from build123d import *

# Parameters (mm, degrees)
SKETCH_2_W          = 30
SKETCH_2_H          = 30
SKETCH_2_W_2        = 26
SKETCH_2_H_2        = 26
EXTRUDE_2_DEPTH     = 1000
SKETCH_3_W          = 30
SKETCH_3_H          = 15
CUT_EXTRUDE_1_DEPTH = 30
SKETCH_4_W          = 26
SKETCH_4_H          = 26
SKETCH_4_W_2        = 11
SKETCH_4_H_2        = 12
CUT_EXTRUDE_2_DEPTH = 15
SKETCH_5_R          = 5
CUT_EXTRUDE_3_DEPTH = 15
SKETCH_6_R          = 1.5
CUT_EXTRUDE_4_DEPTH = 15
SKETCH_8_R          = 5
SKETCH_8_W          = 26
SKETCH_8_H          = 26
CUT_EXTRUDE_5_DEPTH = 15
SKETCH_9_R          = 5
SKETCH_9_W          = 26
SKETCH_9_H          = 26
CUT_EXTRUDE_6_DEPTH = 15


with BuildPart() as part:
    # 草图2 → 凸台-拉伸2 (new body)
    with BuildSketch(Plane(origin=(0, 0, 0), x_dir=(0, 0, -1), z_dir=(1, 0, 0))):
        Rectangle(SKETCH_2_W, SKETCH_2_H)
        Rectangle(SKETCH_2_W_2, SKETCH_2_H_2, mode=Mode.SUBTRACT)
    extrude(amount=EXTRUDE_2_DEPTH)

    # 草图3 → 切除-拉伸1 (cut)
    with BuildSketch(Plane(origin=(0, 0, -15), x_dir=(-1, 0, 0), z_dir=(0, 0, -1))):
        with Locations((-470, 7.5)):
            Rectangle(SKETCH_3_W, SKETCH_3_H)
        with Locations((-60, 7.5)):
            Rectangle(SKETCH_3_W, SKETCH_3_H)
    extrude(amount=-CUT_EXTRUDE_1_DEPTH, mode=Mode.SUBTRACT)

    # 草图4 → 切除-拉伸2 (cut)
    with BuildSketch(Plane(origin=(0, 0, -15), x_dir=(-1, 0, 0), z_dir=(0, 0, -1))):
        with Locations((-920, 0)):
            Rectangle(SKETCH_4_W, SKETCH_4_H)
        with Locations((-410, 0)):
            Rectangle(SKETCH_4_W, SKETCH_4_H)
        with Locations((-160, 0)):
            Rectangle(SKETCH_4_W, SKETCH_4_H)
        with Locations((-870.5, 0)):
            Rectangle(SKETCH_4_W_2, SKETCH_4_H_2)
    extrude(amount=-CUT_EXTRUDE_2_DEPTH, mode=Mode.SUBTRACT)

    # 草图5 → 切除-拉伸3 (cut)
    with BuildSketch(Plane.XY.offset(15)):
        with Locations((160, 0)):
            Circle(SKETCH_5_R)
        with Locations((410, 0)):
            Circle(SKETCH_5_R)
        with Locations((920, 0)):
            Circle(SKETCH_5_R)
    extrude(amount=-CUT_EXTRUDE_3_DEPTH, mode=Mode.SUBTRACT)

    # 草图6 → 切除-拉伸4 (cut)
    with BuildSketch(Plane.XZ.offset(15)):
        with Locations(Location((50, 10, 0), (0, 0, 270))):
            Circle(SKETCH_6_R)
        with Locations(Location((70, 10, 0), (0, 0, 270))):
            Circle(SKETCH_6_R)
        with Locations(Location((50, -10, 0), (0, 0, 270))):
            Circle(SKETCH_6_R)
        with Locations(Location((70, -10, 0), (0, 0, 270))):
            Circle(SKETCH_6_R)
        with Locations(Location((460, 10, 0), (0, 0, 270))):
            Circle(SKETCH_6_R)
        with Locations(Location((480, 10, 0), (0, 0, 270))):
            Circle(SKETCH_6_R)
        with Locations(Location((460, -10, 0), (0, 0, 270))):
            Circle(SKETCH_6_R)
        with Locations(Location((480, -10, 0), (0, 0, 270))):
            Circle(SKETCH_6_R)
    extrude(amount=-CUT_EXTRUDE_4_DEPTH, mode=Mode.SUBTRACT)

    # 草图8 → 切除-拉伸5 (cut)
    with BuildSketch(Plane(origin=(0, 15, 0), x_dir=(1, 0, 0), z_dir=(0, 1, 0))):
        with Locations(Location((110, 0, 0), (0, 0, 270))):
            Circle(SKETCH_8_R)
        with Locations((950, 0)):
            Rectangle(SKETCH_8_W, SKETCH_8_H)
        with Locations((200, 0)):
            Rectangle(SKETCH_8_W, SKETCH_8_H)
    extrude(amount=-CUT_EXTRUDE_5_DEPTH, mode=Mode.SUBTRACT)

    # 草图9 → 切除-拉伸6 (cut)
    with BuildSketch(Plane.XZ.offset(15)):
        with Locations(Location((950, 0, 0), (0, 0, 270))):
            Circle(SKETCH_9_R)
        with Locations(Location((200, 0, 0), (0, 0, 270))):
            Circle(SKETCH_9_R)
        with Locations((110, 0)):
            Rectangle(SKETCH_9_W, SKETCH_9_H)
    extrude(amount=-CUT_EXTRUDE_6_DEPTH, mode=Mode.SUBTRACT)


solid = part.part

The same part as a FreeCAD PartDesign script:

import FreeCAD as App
import Part
import Sketcher
from FreeCAD import Vector
Q = App.Units.Quantity


def add_polygon(sketch, points):
    """Adds a closed chain of lines whose ends are joined by coincident constraints."""
    first, n = sketch.GeometryCount, len(points)
    for a, b in zip(points, points[1:] + points[:1]):
        sketch.addGeometry(Part.LineSegment(App.Vector(*a, 0), App.Vector(*b, 0)), False)
    for i in range(n):
        sketch.addConstraint(Sketcher.Constraint("Coincident", first + i, 2, first + (i + 1) % n, 1))

doc = App.newDocument("Part")
body = doc.addObject("PartDesign::Body", "Body")

sketch1 = body.newObject("Sketcher::SketchObject", "Sketch")
sketch1.AttachmentSupport = (doc.getObject("YZ_Plane"), [""])
sketch1.MapMode = "FlatFace"
add_polygon(sketch1, [(15, 15), (-15, 15), (-15, -15), (15, -15)])
add_polygon(sketch1, [(-13, -13), (-13, 13), (13, 13), (13, -13)])
sketch1.addConstraint([
    Sketcher.Constraint("Horizontal", 0),
    Sketcher.Constraint("Vertical", 1),
    Sketcher.Constraint("Horizontal", 2),
    Sketcher.Constraint("Vertical", 3),
    Sketcher.Constraint("Vertical", 4),
    Sketcher.Constraint("Horizontal", 5),
    Sketcher.Constraint("Vertical", 6),
    Sketcher.Constraint("Horizontal", 7),
    Sketcher.Constraint("Symmetric", 0, 2, 2, 2, -1, 1),
    Sketcher.Constraint("Symmetric", 4, 2, 6, 2, -1, 1),
    Sketcher.Constraint("Equal", 2, 1),
    Sketcher.Constraint("Equal", 7, 4),
    Sketcher.Constraint("DistanceX", 0, 2, 0, 1, Q("30 mm")),
    Sketcher.Constraint("DistanceX", 5, 1, 5, 2, Q("26 mm")),
])
pad1 = body.newObject("PartDesign::Pad", "Pad")
pad1.Profile = sketch1
pad1.Length = 1000

sketch2 = body.newObject("Sketcher::SketchObject", "Sketch001")
sketch2.AttachmentSupport = (doc.getObject("XY_Plane"), [""])
sketch2.MapMode = "FlatFace"
sketch2.AttachmentOffset = App.Placement(Vector(0, 0, -15), App.Rotation())
add_polygon(sketch2, [(485, 15), (485, 0), (455, 0), (455, 15)])
add_polygon(sketch2, [(75, 15), (75, 0), (45, 0), (45, 15)])
sketch2.addConstraint([
    Sketcher.Constraint("Vertical", 0),
    Sketcher.Constraint("Horizontal", 1),
    Sketcher.Constraint("Vertical", 2),
    Sketcher.Constraint("Horizontal", 3),
    Sketcher.Constraint("Vertical", 4),
    Sketcher.Constraint("Horizontal", 5),
    Sketcher.Constraint("Vertical", 6),
    Sketcher.Constraint("Horizontal", 7),
    Sketcher.Constraint("PointOnObject", 0, 2, -1),
    Sketcher.Constraint("PointOnObject", 4, 2, -1),
    Sketcher.Constraint("Horizontal", 3, 2, 6, 2),
    Sketcher.Constraint("Equal", 3, 5),
    Sketcher.Constraint("DistanceX", 1, 2, 1, 1, Q("30 mm")),
    Sketcher.Constraint("DistanceY", 0, 2, 0, 1, Q("15 mm")),
    Sketcher.Constraint("DistanceX", -1, 1, 0, 2, Q("485 mm")),
    Sketcher.Constraint("DistanceX", -1, 1, 4, 2, Q("75 mm")),
])
pocket1 = body.newObject("PartDesign::Pocket", "Pocket")
pocket1.Profile = sketch2
pocket1.Length = 30
pocket1.Reversed = True

sketch3 = body.newObject("Sketcher::SketchObject", "Sketch002")
sketch3.AttachmentSupport = (doc.getObject("XY_Plane"), [""])
sketch3.MapMode = "FlatFace"
sketch3.AttachmentOffset = App.Placement(Vector(0, 0, -15), App.Rotation())
add_polygon(sketch3, [(933, 13), (933, -13), (907, -13), (907, 13)])
add_polygon(sketch3, [(423, 13), (423, -13), (397, -13), (397, 13)])
add_polygon(sketch3, [(173, 13), (173, -13), (147, -13), (147, 13)])
add_polygon(sketch3, [(876, 6), (876, -6), (865, -6), (865, 6)])
sketch3.addConstraint([
    Sketcher.Constraint("Vertical", 0),
    Sketcher.Constraint("Horizontal", 1),
    Sketcher.Constraint("Vertical", 2),
    Sketcher.Constraint("Horizontal", 3),
    Sketcher.Constraint("Vertical", 4),
    Sketcher.Constraint("Horizontal", 5),
    Sketcher.Constraint("Vertical", 6),
    Sketcher.Constraint("Horizontal", 7),
    Sketcher.Constraint("Vertical", 8),
    Sketcher.Constraint("Horizontal", 9),
    Sketcher.Constraint("Vertical", 10),
    Sketcher.Constraint("Horizontal", 11),
    Sketcher.Constraint("Vertical", 12),
    Sketcher.Constraint("Horizontal", 13),
    Sketcher.Constraint("Vertical", 14),
    Sketcher.Constraint("Horizontal", 15),
    Sketcher.Constraint("Horizontal", 1, 2, 4, 2),
    Sketcher.Constraint("Horizontal", 3, 2, 6, 2),
    Sketcher.Constraint("Horizontal", 5, 2, 8, 2),
    Sketcher.Constraint("Horizontal", 7, 2, 10, 2),
    Sketcher.Constraint("Equal", 3, 5),
    Sketcher.Constraint("Equal", 7, 9),
    Sketcher.Constraint("Equal", 11, 0),
    Sketcher.Constraint("DistanceX", 1, 2, 1, 1, Q("26 mm")),
    Sketcher.Constraint("DistanceX", 13, 2, 13, 1, Q("11 mm")),
    Sketcher.Constraint("DistanceY", 12, 2, 12, 1, Q("12 mm")),
    Sketcher.Constraint("DistanceX", -1, 1, 0, 2, Q("933 mm")),
    Sketcher.Constraint("DistanceY", 0, 2, -1, 1, Q("13 mm")),
    Sketcher.Constraint("DistanceX", -1, 1, 4, 2, Q("423 mm")),
    Sketcher.Constraint("DistanceX", -1, 1, 8, 2, Q("173 mm")),
    Sketcher.Constraint("DistanceX", -1, 1, 12, 2, Q("876 mm")),
    Sketcher.Constraint("DistanceY", 12, 2, -1, 1, Q("6 mm")),
])
pocket2 = body.newObject("PartDesign::Pocket", "Pocket001")
pocket2.Profile = sketch3
pocket2.Length = 15
pocket2.Reversed = True

sketch4 = body.newObject("Sketcher::SketchObject", "Sketch003")
sketch4.AttachmentSupport = (doc.getObject("XY_Plane"), [""])
sketch4.MapMode = "FlatFace"
sketch4.AttachmentOffset = App.Placement(Vector(0, 0, 15), App.Rotation())
sketch4.addGeometry([
    Part.Circle(Vector(160, 0, 0), Vector(0, 0, 1), 5),
    Part.Circle(Vector(410, 0, 0), Vector(0, 0, 1), 5),
    Part.Circle(Vector(920, 0, 0), Vector(0, 0, 1), 5),
], False)
sketch4.addConstraint([
    Sketcher.Constraint("Equal", 0, 1),
    Sketcher.Constraint("Equal", 1, 2),
    Sketcher.Constraint("PointOnObject", 0, 3, -1),
    Sketcher.Constraint("PointOnObject", 1, 3, -1),
    Sketcher.Constraint("PointOnObject", 2, 3, -1),
    Sketcher.Constraint("Diameter", 0, Q("10 mm")),
    Sketcher.Constraint("DistanceX", -1, 1, 0, 3, Q("160 mm")),
    Sketcher.Constraint("DistanceX", -1, 1, 1, 3, Q("410 mm")),
    Sketcher.Constraint("DistanceX", -1, 1, 2, 3, Q("920 mm")),
])
pocket3 = body.newObject("PartDesign::Pocket", "Pocket002")
pocket3.Profile = sketch4
pocket3.Length = 15

sketch5 = body.newObject("Sketcher::SketchObject", "Sketch004")
sketch5.AttachmentSupport = (doc.getObject("XZ_Plane"), [""])
sketch5.MapMode = "FlatFace"
sketch5.AttachmentOffset = App.Placement(Vector(0, 0, 15), App.Rotation())
sketch5.addGeometry([
    Part.Circle(Vector(50, 10, 0), Vector(0, 0, 1), 1.5),
    Part.Circle(Vector(70, 10, 0), Vector(0, 0, 1), 1.5),
    Part.Circle(Vector(50, -10, 0), Vector(0, 0, 1), 1.5),
    Part.Circle(Vector(70, -10, 0), Vector(0, 0, 1), 1.5),
    Part.Circle(Vector(460, 10, 0), Vector(0, 0, 1), 1.5),
    Part.Circle(Vector(480, 10, 0), Vector(0, 0, 1), 1.5),
    Part.Circle(Vector(460, -10, 0), Vector(0, 0, 1), 1.5),
    Part.Circle(Vector(480, -10, 0), Vector(0, 0, 1), 1.5),
], False)
sketch5.addConstraint([
    Sketcher.Constraint("Equal", 0, 1),
    Sketcher.Constraint("Equal", 1, 2),
    Sketcher.Constraint("Equal", 2, 3),
    Sketcher.Constraint("Equal", 3, 4),
    Sketcher.Constraint("Equal", 4, 5),
    Sketcher.Constraint("Equal", 5, 6),
    Sketcher.Constraint("Equal", 6, 7),
    Sketcher.Constraint("Symmetric", 0, 3, 2, 3, -1),
    Sketcher.Constraint("Symmetric", 1, 3, 3, 3, -1),
    Sketcher.Constraint("Symmetric", 4, 3, 6, 3, -1),
    Sketcher.Constraint("Symmetric", 5, 3, 7, 3, -1),
    Sketcher.Constraint("Horizontal", 0, 3, 1, 3),
    Sketcher.Constraint("Horizontal", 1, 3, 4, 3),
    Sketcher.Constraint("Horizontal", 4, 3, 5, 3),
    Sketcher.Constraint("Diameter", 0, Q("3 mm")),
    Sketcher.Constraint("DistanceX", -1, 1, 0, 3, Q("50 mm")),
    Sketcher.Constraint("DistanceY", -1, 1, 0, 3, Q("10 mm")),
    Sketcher.Constraint("DistanceX", -1, 1, 1, 3, Q("70 mm")),
    Sketcher.Constraint("DistanceX", -1, 1, 4, 3, Q("460 mm")),
    Sketcher.Constraint("DistanceX", -1, 1, 5, 3, Q("480 mm")),
])
pocket4 = body.newObject("PartDesign::Pocket", "Pocket003")
pocket4.Profile = sketch5
pocket4.Length = 15

sketch6 = body.newObject("Sketcher::SketchObject", "Sketch005")
sketch6.AttachmentSupport = (doc.getObject("XZ_Plane"), [""])
sketch6.MapMode = "FlatFace"
sketch6.AttachmentOffset = App.Placement(Vector(0, 0, -15), App.Rotation())
sketch6.addGeometry(Part.Circle(Vector(110, 0, 0), Vector(0, 0, 1), 5), False)
add_polygon(sketch6, [(937, -13), (937, 13), (963, 13), (963, -13)])
add_polygon(sketch6, [(187, -13), (187, 13), (213, 13), (213, -13)])
sketch6.addConstraint([
    Sketcher.Constraint("Vertical", 1),
    Sketcher.Constraint("Horizontal", 2),
    Sketcher.Constraint("Vertical", 3),
    Sketcher.Constraint("Horizontal", 4),
    Sketcher.Constraint("Vertical", 5),
    Sketcher.Constraint("Horizontal", 6),
    Sketcher.Constraint("Vertical", 7),
    Sketcher.Constraint("Horizontal", 8),
    Sketcher.Constraint("PointOnObject", 0, 3, -1),
    Sketcher.Constraint("Horizontal", 2, 2, 5, 2),
    Sketcher.Constraint("Horizontal", 4, 2, 7, 2),
    Sketcher.Constraint("Equal", 4, 6),
    Sketcher.Constraint("Equal", 8, 1),
    Sketcher.Constraint("Diameter", 0, Q("10 mm")),
    Sketcher.Constraint("DistanceX", 2, 1, 2, 2, Q("26 mm")),
    Sketcher.Constraint("DistanceX", -1, 1, 0, 3, Q("110 mm")),
    Sketcher.Constraint("DistanceX", -1, 1, 1, 2, Q("937 mm")),
    Sketcher.Constraint("DistanceY", -1, 1, 1, 2, Q("13 mm")),
    Sketcher.Constraint("DistanceX", -1, 1, 5, 2, Q("187 mm")),
])
pocket5 = body.newObject("PartDesign::Pocket", "Pocket004")
pocket5.Profile = sketch6
pocket5.Length = 15
pocket5.Reversed = True

sketch7 = body.newObject("Sketcher::SketchObject", "Sketch006")
sketch7.AttachmentSupport = (doc.getObject("XZ_Plane"), [""])
sketch7.MapMode = "FlatFace"
sketch7.AttachmentOffset = App.Placement(Vector(0, 0, 15), App.Rotation())
sketch7.addGeometry(Part.Circle(Vector(950, 0, 0), Vector(0, 0, 1), 5), False)
sketch7.addGeometry(Part.Circle(Vector(200, 0, 0), Vector(0, 0, 1), 5), False)
add_polygon(sketch7, [(97, 13), (97, -13), (123, -13), (123, 13)])
sketch7.addConstraint([
    Sketcher.Constraint("Vertical", 2),
    Sketcher.Constraint("Horizontal", 3),
    Sketcher.Constraint("Vertical", 4),
    Sketcher.Constraint("Horizontal", 5),
    Sketcher.Constraint("Equal", 0, 1),
    Sketcher.Constraint("PointOnObject", 0, 3, -1),
    Sketcher.Constraint("PointOnObject", 1, 3, -1),
    Sketcher.Constraint("Equal", 5, 2),
    Sketcher.Constraint("Diameter", 0, Q("10 mm")),
    Sketcher.Constraint("DistanceX", 3, 1, 3, 2, Q("26 mm")),
    Sketcher.Constraint("DistanceX", -1, 1, 0, 3, Q("950 mm")),
    Sketcher.Constraint("DistanceX", -1, 1, 1, 3, Q("200 mm")),
    Sketcher.Constraint("DistanceX", -1, 1, 2, 2, Q("97 mm")),
    Sketcher.Constraint("DistanceY", 2, 2, -1, 1, Q("13 mm")),
])
pocket6 = body.newObject("PartDesign::Pocket", "Pocket005")
pocket6.Profile = sketch7
pocket6.Length = 15

doc.recompute()
